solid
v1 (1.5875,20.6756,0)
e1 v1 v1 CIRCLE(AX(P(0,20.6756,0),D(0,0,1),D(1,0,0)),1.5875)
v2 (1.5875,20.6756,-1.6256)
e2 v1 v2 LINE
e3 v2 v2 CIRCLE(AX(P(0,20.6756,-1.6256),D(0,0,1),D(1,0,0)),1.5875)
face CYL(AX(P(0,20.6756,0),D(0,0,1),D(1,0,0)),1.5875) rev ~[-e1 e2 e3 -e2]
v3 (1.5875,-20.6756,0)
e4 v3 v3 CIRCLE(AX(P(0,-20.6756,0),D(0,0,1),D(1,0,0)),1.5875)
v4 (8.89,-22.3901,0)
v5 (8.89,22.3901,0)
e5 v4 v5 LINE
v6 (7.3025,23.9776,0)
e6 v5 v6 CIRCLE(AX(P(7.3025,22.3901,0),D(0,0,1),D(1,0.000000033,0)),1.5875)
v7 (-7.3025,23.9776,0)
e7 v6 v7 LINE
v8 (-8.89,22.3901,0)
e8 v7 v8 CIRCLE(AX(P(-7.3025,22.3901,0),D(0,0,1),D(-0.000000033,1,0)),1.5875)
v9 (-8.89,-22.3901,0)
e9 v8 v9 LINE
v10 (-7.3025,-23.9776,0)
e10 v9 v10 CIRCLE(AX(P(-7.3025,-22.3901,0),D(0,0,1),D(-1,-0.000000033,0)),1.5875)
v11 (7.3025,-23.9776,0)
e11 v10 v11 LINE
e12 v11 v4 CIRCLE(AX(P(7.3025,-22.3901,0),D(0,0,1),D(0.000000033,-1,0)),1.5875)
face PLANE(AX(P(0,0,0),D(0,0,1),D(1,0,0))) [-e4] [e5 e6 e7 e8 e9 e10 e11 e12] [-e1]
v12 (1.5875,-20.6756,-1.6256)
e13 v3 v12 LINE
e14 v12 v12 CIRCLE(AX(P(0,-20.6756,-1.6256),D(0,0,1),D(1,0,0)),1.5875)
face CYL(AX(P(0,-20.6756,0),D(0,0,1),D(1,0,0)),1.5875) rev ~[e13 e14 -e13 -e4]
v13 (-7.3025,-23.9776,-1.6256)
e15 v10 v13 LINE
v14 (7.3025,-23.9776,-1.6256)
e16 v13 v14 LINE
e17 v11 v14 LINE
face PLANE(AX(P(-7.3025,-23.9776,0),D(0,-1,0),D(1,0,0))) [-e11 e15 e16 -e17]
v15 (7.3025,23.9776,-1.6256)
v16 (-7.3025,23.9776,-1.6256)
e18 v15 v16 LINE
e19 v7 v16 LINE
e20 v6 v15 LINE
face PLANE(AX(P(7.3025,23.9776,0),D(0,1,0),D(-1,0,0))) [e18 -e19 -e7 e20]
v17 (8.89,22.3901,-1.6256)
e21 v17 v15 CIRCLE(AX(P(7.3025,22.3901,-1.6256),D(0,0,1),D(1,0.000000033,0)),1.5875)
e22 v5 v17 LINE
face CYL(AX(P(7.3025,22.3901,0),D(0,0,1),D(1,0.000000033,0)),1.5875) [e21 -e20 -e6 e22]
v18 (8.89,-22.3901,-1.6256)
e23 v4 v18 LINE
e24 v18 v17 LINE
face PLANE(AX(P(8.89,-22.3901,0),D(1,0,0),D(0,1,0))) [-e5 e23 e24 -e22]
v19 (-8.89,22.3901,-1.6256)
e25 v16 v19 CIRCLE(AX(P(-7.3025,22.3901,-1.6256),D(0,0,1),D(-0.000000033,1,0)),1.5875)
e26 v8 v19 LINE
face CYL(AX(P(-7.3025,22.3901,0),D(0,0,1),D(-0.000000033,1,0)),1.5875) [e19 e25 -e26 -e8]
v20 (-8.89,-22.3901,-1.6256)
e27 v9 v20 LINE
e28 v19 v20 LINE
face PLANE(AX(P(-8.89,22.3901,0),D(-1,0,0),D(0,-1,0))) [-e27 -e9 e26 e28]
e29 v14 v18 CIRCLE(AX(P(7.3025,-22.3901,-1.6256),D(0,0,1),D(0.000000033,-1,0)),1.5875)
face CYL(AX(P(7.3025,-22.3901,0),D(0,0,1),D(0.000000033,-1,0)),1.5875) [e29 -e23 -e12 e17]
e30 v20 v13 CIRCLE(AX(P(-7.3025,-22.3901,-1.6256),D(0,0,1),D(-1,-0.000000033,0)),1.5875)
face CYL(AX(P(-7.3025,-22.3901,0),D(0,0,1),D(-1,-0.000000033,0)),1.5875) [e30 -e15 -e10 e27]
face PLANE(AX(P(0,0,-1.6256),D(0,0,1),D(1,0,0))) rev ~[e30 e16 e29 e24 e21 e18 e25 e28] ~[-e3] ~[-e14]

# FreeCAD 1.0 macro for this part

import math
import FreeCAD as App
import Part
import Sketcher
Q = App.Units.Quantity

doc = App.newDocument("Part")
body = doc.addObject("PartDesign::Body", "Body")

sketch1 = body.newObject("Sketcher::SketchObject", "Sketch")
sketch1.AttachmentSupport = (doc.getObject("XY_Plane"), [""])
sketch1.MapMode = "FlatFace"
sketch1.addGeometry([
    Part.LineSegment(App.Vector(-7.3025, -23.9776, 0), App.Vector(7.3025, -23.9776, 0)),
    Part.ArcOfCircle(Part.Circle(App.Vector(7.3025, -22.3901, 0), App.Vector(0, 0, 1), 1.5875), math.radians(-89.999998), math.radians(-0.000002)),
    Part.LineSegment(App.Vector(8.89, -22.3901, 0), App.Vector(8.89, 22.3901, 0)),
    Part.ArcOfCircle(Part.Circle(App.Vector(7.3025, 22.3901, 0), App.Vector(0, 0, 1), 1.5875), math.radians(0.000002), math.radians(89.999998)),
    Part.LineSegment(App.Vector(7.3025, 23.9776, 0), App.Vector(-7.3025, 23.9776, 0)),
    Part.ArcOfCircle(Part.Circle(App.Vector(-7.3025, 22.3901, 0), App.Vector(0, 0, 1), 1.5875), math.radians(90.000002), math.radians(179.999998)),
    Part.LineSegment(App.Vector(-8.89, 22.3901, 0), App.Vector(-8.89, -22.3901, 0)),
    Part.ArcOfCircle(Part.Circle(App.Vector(-7.3025, -22.3901, 0), App.Vector(0, 0, 1), 1.5875), math.radians(-179.999998), math.radians(-90.000002)),
    Part.Circle(App.Vector(0, -20.6756, 0), App.Vector(0, 0, 1), 1.5875),
    Part.Circle(App.Vector(0, 20.6756, 0), App.Vector(0, 0, 1), 1.5875),
], False)
sketch1.addConstraint([
    Sketcher.Constraint("Tangent", 0, 2, 1, 1),
    Sketcher.Constraint("Tangent", 1, 2, 2, 1),
    Sketcher.Constraint("Tangent", 2, 2, 3, 1),
    Sketcher.Constraint("Tangent", 3, 2, 4, 1),
    Sketcher.Constraint("Tangent", 4, 2, 5, 1),
    Sketcher.Constraint("Tangent", 5, 2, 6, 1),
    Sketcher.Constraint("Tangent", 6, 2, 7, 1),
    Sketcher.Constraint("Tangent", 7, 2, 0, 1),
    Sketcher.Constraint("Horizontal", 0),
    Sketcher.Constraint("Vertical", 2),
    Sketcher.Constraint("Horizontal", 4),
    Sketcher.Constraint("Vertical", 6),
    Sketcher.Constraint("Equal", 1, 3),
    Sketcher.Constraint("Equal", 3, 5),
    Sketcher.Constraint("Equal", 5, 7),
    Sketcher.Constraint("Equal", 7, 8),
    Sketcher.Constraint("Equal", 8, 9),
    Sketcher.Constraint("Symmetric", 1, 3, 5, 3, -1, 1),
    Sketcher.Constraint("Symmetric", 8, 3, 9, 3, -1, 1),
    Sketcher.Constraint("PointOnObject", 8, 3, -2),
    Sketcher.Constraint("Diameter", 8, Q("0.125 in")),
    Sketcher.Constraint("DistanceX", 6, 2, 1, 2, Q("0.7 in")),
    Sketcher.Constraint("DistanceY", 2, 1, 2, 2, Q("1.763 in")),
    Sketcher.Constraint("DistanceY", 0, 2, 8, 3, Q("0.13 in")),
])
pad1 = body.newObject("PartDesign::Pad", "Pad")
pad1.Profile = sketch1
pad1.Length = Q("0.064 in")
pad1.Reversed = True

doc.recompute()
